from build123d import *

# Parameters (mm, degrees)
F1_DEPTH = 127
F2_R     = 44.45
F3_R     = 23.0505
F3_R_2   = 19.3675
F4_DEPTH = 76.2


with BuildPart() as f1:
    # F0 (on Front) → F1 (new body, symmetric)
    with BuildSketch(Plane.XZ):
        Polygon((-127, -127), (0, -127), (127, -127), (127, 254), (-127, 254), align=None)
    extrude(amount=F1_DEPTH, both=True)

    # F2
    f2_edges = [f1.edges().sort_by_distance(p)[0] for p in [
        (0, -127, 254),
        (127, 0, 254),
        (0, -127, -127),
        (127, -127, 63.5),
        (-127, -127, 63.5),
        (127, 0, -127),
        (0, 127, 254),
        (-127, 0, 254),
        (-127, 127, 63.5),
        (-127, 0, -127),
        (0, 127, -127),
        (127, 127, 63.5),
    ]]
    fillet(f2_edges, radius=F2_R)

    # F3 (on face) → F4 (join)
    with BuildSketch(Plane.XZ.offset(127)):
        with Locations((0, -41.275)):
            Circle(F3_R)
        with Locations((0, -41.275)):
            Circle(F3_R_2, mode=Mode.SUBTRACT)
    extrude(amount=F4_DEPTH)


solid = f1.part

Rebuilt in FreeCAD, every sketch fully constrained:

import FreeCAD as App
import Part
import Sketcher
Q = App.Units.Quantity

doc = App.newDocument("Part")
body = doc.addObject("PartDesign::Body", "Body")

# Sketch on XZ plane
sketch1 = body.newObject("Sketcher::SketchObject", "Sketch")
sketch1.AttachmentSupport = (doc.getObject("XZ_Plane"), [""])
sketch1.MapMode = "FlatFace"
sketch1.addGeometry([
    Part.LineSegment(App.Vector(-127, -127, 0), App.Vector(127, -127, 0)),
    Part.LineSegment(App.Vector(127, -127, 0), App.Vector(127, 254, 0)),
    Part.LineSegment(App.Vector(127, 254, 0), App.Vector(-127, 254, 0)),
    Part.LineSegment(App.Vector(-127, 254, 0), App.Vector(-127, -127, 0)),
], False)
sketch1.addConstraint([
    Sketcher.Constraint("Coincident", 0, 2, 1, 1),
    Sketcher.Constraint("Coincident", 1, 2, 2, 1),
    Sketcher.Constraint("Coincident", 2, 2, 3, 1),
    Sketcher.Constraint("Coincident", 3, 2, 0, 1),
    Sketcher.Constraint("Horizontal", 0),
    Sketcher.Constraint("Vertical", 1),
    Sketcher.Constraint("Horizontal", 2),
    Sketcher.Constraint("Vertical", 3),
    Sketcher.Constraint("DistanceX", 0, 1, 0, 2, Q("10 in")),
    Sketcher.Constraint("DistanceY", 1, 1, 1, 2, Q("15 in")),
    Sketcher.Constraint("DistanceX", -1, 1, 0, 2, Q("5 in")),
    Sketcher.Constraint("DistanceY", 0, 2, -1, 1, Q("5 in")),
])
pad1 = body.newObject("PartDesign::Pad", "Pad")
pad1.Profile = sketch1
pad1.Length = Q("10 in")
pad1.Midplane = True
doc.recompute()

fillet = body.newObject("PartDesign::Fillet", "Fillet")
fillet.Base = (pad1, ["Edge1"])
fillet.UseAllEdges = True
fillet.Radius = Q("1.75 in")

# Sketch on XZ plane
sketch2 = body.newObject("Sketcher::SketchObject", "Sketch001")
sketch2.AttachmentSupport = (doc.getObject("XZ_Plane"), [""])
sketch2.MapMode = "FlatFace"
sketch2.AttachmentOffset = App.Placement(App.Vector(0, 0, 5 * 25.4), App.Rotation())
sketch2.addGeometry([
    Part.Circle(App.Vector(0, -41.275, 0), App.Vector(0, 0, 1), 23.0505),
    Part.Circle(App.Vector(0, -41.275, 0), App.Vector(0, 0, 1), 19.3675),
], False)
sketch2.addConstraint([
    Sketcher.Constraint("Coincident", 1, 3, 0, 3),
    Sketcher.Constraint("PointOnObject", 0, 3, -2),
    Sketcher.Constraint("Diameter", 0, Q("1.815 in")),
    Sketcher.Constraint("Diameter", 1, Q("1.525 in")),
    Sketcher.Constraint("DistanceY", 0, 3, -1, 1, Q("1.625 in")),
])
pad2 = body.newObject("PartDesign::Pad", "Pad001")
pad2.Profile = sketch2
pad2.Length = Q("3 in")

doc.recompute()
